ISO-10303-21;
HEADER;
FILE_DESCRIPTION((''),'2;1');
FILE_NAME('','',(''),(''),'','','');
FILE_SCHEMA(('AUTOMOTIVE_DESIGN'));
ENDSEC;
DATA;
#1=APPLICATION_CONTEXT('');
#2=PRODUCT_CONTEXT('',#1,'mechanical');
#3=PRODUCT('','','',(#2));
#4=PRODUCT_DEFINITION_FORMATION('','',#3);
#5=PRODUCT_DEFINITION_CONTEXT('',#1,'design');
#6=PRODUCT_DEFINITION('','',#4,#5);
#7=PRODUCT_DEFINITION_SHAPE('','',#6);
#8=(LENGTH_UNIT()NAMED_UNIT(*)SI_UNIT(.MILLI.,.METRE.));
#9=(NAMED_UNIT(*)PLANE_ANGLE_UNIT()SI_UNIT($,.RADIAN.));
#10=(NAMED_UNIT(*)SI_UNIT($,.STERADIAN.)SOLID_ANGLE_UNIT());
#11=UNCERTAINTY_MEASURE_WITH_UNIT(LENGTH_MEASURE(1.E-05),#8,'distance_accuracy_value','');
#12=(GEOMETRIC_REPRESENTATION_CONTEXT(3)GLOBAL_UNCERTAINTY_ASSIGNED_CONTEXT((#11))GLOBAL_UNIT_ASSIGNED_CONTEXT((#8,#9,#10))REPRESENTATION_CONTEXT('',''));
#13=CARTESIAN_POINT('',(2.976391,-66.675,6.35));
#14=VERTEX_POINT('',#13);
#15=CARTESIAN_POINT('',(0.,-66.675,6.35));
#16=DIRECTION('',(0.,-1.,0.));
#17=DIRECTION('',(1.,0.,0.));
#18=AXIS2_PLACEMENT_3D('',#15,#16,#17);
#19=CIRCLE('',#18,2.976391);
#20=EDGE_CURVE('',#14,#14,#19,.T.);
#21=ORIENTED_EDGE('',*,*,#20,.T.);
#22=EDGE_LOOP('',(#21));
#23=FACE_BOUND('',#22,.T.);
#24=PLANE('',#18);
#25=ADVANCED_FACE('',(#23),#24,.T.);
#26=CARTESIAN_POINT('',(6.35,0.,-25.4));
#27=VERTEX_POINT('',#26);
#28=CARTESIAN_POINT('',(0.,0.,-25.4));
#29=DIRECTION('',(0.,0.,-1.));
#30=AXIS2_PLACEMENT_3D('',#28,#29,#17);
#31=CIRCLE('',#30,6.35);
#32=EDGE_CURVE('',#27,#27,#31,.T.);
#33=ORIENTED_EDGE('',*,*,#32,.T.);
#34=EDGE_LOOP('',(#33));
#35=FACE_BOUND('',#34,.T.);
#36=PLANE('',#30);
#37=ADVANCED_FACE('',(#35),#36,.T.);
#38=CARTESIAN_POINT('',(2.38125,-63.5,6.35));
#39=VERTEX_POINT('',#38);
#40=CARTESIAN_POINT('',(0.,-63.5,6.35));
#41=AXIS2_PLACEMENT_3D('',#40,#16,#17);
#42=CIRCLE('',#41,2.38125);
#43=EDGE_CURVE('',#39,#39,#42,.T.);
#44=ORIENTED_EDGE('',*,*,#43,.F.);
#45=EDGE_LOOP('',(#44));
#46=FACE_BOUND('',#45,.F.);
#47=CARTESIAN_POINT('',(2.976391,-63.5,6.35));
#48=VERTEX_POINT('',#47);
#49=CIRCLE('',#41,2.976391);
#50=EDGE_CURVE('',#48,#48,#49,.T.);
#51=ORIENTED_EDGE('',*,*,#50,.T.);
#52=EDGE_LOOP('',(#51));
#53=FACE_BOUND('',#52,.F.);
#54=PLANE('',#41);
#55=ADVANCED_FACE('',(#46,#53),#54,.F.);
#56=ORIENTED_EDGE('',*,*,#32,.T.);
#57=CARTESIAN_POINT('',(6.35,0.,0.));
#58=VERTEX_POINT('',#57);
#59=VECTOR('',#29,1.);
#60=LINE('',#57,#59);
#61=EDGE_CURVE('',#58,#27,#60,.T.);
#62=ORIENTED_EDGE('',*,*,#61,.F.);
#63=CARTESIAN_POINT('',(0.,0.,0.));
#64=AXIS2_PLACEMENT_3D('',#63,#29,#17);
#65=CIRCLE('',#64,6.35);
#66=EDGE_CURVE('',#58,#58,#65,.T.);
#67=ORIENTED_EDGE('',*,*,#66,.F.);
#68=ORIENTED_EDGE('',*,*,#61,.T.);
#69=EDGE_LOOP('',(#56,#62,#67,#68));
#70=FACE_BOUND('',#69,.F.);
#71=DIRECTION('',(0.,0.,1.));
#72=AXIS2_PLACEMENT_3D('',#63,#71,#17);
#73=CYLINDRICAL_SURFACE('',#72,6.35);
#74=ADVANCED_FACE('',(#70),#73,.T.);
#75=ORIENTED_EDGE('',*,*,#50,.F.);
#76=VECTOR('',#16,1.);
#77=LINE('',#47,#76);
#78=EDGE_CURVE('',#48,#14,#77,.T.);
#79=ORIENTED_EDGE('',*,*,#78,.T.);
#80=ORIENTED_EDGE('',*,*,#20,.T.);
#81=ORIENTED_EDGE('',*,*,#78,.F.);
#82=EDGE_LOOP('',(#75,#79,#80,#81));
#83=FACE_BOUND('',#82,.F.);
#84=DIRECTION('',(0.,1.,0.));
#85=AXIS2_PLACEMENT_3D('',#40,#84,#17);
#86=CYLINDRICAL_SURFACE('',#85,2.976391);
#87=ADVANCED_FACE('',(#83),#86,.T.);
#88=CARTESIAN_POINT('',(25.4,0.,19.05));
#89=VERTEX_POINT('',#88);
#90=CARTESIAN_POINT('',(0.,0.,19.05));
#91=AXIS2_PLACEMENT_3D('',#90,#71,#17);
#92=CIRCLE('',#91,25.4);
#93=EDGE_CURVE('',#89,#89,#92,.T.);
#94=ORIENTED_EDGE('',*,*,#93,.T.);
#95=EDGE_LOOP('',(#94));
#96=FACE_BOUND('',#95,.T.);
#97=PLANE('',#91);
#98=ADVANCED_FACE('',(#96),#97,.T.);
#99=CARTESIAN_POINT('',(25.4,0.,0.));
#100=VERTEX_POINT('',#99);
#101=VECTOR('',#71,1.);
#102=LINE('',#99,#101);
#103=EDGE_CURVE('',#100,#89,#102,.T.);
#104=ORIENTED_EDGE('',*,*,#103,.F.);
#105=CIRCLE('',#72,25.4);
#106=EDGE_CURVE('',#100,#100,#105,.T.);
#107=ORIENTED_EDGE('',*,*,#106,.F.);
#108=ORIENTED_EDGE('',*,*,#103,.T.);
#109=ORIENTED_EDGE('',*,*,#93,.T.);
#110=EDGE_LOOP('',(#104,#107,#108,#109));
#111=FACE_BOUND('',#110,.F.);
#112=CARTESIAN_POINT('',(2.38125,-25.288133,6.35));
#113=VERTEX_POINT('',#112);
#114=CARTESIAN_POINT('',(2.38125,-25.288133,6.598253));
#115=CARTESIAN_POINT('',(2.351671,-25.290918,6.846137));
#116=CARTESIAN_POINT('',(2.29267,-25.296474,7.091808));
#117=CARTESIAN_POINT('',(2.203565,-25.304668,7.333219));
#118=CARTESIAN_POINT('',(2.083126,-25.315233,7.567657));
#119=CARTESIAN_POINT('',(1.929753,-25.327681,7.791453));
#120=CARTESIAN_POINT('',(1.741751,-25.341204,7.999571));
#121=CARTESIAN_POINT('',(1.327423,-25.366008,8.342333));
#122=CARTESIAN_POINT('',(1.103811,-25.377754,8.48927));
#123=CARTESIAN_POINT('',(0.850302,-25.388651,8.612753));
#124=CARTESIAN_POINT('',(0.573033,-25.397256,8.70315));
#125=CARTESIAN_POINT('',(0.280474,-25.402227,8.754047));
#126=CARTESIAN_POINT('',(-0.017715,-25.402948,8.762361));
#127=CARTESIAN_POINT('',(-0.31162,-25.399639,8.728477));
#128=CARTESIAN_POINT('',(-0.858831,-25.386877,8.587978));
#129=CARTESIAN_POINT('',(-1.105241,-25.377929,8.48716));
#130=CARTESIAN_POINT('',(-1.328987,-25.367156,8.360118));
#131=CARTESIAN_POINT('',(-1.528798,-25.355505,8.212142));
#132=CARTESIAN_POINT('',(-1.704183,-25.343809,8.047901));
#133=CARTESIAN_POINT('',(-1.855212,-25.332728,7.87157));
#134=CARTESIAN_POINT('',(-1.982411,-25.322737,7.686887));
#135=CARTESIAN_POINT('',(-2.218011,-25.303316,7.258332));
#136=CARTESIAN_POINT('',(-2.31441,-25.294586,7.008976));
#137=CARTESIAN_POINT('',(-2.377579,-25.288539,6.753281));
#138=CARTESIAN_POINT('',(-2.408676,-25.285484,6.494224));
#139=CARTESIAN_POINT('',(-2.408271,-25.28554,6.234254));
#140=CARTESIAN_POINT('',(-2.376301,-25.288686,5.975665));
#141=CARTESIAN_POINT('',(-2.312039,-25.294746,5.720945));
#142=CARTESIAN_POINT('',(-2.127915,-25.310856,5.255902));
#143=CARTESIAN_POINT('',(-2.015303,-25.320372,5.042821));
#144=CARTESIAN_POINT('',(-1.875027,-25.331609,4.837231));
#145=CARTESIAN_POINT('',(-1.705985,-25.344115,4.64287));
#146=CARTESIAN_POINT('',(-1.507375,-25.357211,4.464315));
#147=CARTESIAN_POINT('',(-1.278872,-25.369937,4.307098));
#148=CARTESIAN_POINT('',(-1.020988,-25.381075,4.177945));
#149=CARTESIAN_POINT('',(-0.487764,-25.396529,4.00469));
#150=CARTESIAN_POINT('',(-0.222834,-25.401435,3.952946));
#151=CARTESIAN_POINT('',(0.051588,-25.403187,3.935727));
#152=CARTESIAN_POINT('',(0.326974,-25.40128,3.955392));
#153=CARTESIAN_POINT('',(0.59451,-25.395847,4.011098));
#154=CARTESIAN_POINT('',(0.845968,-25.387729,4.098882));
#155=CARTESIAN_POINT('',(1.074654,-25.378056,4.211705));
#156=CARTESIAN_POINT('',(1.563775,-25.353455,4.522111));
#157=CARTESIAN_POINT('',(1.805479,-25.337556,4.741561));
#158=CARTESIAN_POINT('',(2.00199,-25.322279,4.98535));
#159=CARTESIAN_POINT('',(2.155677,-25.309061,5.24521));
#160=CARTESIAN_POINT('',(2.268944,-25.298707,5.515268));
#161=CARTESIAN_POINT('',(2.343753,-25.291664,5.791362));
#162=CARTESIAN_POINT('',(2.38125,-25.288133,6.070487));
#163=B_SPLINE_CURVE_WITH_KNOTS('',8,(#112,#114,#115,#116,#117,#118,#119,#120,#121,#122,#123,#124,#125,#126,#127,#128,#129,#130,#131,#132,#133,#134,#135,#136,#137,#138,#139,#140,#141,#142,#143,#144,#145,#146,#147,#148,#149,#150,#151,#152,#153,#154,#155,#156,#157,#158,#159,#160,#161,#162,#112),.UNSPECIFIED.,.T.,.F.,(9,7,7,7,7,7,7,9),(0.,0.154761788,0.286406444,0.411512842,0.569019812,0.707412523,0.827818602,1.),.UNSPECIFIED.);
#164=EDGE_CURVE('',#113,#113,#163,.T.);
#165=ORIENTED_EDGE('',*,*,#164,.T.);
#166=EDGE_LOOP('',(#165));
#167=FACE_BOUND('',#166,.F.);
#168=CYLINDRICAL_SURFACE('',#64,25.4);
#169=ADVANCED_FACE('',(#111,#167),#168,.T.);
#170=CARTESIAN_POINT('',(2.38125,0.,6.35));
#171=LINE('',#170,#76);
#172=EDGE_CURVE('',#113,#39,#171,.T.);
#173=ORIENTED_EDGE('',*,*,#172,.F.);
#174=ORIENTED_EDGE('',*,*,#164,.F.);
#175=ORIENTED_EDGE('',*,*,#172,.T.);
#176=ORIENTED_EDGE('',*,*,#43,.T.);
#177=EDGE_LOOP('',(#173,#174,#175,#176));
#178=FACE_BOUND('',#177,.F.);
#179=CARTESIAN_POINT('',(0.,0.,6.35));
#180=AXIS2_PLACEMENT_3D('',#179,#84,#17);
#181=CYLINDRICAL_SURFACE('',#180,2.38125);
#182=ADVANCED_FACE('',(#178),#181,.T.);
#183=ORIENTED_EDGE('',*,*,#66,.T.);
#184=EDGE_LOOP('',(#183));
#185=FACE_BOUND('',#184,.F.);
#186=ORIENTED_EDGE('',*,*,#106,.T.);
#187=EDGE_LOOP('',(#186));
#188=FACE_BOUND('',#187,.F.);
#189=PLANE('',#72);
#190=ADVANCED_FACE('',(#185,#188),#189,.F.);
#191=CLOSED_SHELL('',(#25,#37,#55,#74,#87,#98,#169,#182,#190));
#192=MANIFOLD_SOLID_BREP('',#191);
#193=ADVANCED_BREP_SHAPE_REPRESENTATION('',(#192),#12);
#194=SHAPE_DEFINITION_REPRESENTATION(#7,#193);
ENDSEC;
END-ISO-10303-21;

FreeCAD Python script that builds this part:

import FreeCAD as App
import Part
import Sketcher
from FreeCAD import Vector
Q = App.Units.Quantity

doc = App.newDocument("Part")
body = doc.addObject("PartDesign::Body", "Body")

# Sketch on XY plane
sketch1 = body.newObject("Sketcher::SketchObject", "Sketch")
sketch1.AttachmentSupport = (doc.getObject("XY_Plane"), [""])
sketch1.MapMode = "FlatFace"
sketch1.addGeometry(Part.Circle(Vector(0, 0, 0), Vector(0, 0, 1), 25), False)
sketch1.addConstraint(Sketcher.Constraint("Coincident", 0, 3, -1, 1))
sketch1.addConstraint(Sketcher.Constraint("Diameter", 0, Q("2 in")))
pad1 = body.newObject("PartDesign::Pad", "Pad")
pad1.Profile = sketch1
pad1.Length = Q("0.75 in")

# Sketch on XY plane
sketch2 = body.newObject("Sketcher::SketchObject", "Sketch001")
sketch2.AttachmentSupport = (doc.getObject("XY_Plane"), [""])
sketch2.MapMode = "FlatFace"
sketch2.AttachmentOffset = App.Placement(Vector(0, 0, 0.75 * 25.4), App.Rotation())
sketch2.addGeometry(Part.Circle(Vector(0, 0, 0), Vector(0, 0, 1), 25), False)
sketch2.addGeometry(Part.Circle(Vector(0, 0, 0), Vector(0, 0, 1), 22), False)
sketch2.addConstraint(Sketcher.Constraint("Coincident", 0, 3, -1, 1))
sketch2.addConstraint(Sketcher.Constraint("Coincident", 1, 3, -1, 1))
sketch2.addConstraint(Sketcher.Constraint("Diameter", 0, Q("2 in")))
sketch2.addConstraint(Sketcher.Constraint("Diameter", 1, Q("1.75 in")))
pad2 = body.newObject("PartDesign::Pad", "Pad001")
pad2.Profile = sketch2
pad2.Length = Q("0.125 in")
pad2.Reversed = True

# Sketch on XZ plane
sketch3 = body.newObject("Sketcher::SketchObject", "Sketch002")
sketch3.AttachmentSupport = (doc.getObject("XZ_Plane"), [""])
sketch3.MapMode = "FlatFace"
sketch3.addGeometry(Part.Circle(Vector(0, 6.3, 0), Vector(0, 0, 1), 2.4), False)
sketch3.addConstraint(Sketcher.Constraint("PointOnObject", 0, 3, -2))
sketch3.addConstraint(Sketcher.Constraint("Diameter", 0, Q("0.1875 in")))
sketch3.addConstraint(Sketcher.Constraint("DistanceY", -1, 1, 0, 3, Q("0.25 in")))
pad3 = body.newObject("PartDesign::Pad", "Pad002")
pad3.Profile = sketch3
pad3.Length = Q("2.5 in")

# Sketch on XZ plane
sketch4 = body.newObject("Sketcher::SketchObject", "Sketch003")
sketch4.AttachmentSupport = (doc.getObject("XZ_Plane"), [""])
sketch4.MapMode = "FlatFace"
sketch4.AttachmentOffset = App.Placement(Vector(0, 0, 2.5 * 25.4), App.Rotation())
sketch4.addGeometry(Part.Circle(Vector(0, 6.3, 0), Vector(0, 0, 1), 3), False)
sketch4.addConstraint(Sketcher.Constraint("PointOnObject", 0, 3, -2))
sketch4.addConstraint(Sketcher.Constraint("DistanceY", -1, 1, 0, 3, Q("0.25 in")))
sketch4.addConstraint(Sketcher.Constraint("Diameter", 0, Q("5.952782 mm")))
pad4 = body.newObject("PartDesign::Pad", "Pad003")
pad4.Profile = sketch4
pad4.Length = Q("0.125 in")

# Sketch on XY plane
sketch5 = body.newObject("Sketcher::SketchObject", "Sketch004")
sketch5.AttachmentSupport = (doc.getObject("XY_Plane"), [""])
sketch5.MapMode = "FlatFace"
sketch5.AttachmentOffset = App.Placement(Vector(0, 0, 0.75 * 25.4), App.Rotation())
sketch5.addGeometry(Part.Circle(Vector(0, 0, 0), Vector(0, 0, 1), 23), False)
sketch5.addConstraint(Sketcher.Constraint("Coincident", 0, 3, -1, 1))
sketch5.addConstraint(Sketcher.Constraint("Diameter", 0, Q("1.78 in")))
pad5 = body.newObject("PartDesign::Pad", "Pad004")
pad5.Profile = sketch5
pad5.Length = Q("0.125 in")
pad5.Reversed = True

# Sketch on XY plane
sketch6 = body.newObject("Sketcher::SketchObject", "Sketch005")
sketch6.AttachmentSupport = (doc.getObject("XY_Plane"), [""])
sketch6.MapMode = "FlatFace"
sketch6.addGeometry(Part.Circle(Vector(0, 0, 0), Vector(0, 0, 1), 6), False)
sketch6.addConstraint(Sketcher.Constraint("Coincident", 0, 3, -1, 1))
sketch6.addConstraint(Sketcher.Constraint("Diameter", 0, Q("0.5 in")))
pad6 = body.newObject("PartDesign::Pad", "Pad005")
pad6.Profile = sketch6
pad6.Length = Q("1 in")
pad6.Reversed = True

doc.recompute()
